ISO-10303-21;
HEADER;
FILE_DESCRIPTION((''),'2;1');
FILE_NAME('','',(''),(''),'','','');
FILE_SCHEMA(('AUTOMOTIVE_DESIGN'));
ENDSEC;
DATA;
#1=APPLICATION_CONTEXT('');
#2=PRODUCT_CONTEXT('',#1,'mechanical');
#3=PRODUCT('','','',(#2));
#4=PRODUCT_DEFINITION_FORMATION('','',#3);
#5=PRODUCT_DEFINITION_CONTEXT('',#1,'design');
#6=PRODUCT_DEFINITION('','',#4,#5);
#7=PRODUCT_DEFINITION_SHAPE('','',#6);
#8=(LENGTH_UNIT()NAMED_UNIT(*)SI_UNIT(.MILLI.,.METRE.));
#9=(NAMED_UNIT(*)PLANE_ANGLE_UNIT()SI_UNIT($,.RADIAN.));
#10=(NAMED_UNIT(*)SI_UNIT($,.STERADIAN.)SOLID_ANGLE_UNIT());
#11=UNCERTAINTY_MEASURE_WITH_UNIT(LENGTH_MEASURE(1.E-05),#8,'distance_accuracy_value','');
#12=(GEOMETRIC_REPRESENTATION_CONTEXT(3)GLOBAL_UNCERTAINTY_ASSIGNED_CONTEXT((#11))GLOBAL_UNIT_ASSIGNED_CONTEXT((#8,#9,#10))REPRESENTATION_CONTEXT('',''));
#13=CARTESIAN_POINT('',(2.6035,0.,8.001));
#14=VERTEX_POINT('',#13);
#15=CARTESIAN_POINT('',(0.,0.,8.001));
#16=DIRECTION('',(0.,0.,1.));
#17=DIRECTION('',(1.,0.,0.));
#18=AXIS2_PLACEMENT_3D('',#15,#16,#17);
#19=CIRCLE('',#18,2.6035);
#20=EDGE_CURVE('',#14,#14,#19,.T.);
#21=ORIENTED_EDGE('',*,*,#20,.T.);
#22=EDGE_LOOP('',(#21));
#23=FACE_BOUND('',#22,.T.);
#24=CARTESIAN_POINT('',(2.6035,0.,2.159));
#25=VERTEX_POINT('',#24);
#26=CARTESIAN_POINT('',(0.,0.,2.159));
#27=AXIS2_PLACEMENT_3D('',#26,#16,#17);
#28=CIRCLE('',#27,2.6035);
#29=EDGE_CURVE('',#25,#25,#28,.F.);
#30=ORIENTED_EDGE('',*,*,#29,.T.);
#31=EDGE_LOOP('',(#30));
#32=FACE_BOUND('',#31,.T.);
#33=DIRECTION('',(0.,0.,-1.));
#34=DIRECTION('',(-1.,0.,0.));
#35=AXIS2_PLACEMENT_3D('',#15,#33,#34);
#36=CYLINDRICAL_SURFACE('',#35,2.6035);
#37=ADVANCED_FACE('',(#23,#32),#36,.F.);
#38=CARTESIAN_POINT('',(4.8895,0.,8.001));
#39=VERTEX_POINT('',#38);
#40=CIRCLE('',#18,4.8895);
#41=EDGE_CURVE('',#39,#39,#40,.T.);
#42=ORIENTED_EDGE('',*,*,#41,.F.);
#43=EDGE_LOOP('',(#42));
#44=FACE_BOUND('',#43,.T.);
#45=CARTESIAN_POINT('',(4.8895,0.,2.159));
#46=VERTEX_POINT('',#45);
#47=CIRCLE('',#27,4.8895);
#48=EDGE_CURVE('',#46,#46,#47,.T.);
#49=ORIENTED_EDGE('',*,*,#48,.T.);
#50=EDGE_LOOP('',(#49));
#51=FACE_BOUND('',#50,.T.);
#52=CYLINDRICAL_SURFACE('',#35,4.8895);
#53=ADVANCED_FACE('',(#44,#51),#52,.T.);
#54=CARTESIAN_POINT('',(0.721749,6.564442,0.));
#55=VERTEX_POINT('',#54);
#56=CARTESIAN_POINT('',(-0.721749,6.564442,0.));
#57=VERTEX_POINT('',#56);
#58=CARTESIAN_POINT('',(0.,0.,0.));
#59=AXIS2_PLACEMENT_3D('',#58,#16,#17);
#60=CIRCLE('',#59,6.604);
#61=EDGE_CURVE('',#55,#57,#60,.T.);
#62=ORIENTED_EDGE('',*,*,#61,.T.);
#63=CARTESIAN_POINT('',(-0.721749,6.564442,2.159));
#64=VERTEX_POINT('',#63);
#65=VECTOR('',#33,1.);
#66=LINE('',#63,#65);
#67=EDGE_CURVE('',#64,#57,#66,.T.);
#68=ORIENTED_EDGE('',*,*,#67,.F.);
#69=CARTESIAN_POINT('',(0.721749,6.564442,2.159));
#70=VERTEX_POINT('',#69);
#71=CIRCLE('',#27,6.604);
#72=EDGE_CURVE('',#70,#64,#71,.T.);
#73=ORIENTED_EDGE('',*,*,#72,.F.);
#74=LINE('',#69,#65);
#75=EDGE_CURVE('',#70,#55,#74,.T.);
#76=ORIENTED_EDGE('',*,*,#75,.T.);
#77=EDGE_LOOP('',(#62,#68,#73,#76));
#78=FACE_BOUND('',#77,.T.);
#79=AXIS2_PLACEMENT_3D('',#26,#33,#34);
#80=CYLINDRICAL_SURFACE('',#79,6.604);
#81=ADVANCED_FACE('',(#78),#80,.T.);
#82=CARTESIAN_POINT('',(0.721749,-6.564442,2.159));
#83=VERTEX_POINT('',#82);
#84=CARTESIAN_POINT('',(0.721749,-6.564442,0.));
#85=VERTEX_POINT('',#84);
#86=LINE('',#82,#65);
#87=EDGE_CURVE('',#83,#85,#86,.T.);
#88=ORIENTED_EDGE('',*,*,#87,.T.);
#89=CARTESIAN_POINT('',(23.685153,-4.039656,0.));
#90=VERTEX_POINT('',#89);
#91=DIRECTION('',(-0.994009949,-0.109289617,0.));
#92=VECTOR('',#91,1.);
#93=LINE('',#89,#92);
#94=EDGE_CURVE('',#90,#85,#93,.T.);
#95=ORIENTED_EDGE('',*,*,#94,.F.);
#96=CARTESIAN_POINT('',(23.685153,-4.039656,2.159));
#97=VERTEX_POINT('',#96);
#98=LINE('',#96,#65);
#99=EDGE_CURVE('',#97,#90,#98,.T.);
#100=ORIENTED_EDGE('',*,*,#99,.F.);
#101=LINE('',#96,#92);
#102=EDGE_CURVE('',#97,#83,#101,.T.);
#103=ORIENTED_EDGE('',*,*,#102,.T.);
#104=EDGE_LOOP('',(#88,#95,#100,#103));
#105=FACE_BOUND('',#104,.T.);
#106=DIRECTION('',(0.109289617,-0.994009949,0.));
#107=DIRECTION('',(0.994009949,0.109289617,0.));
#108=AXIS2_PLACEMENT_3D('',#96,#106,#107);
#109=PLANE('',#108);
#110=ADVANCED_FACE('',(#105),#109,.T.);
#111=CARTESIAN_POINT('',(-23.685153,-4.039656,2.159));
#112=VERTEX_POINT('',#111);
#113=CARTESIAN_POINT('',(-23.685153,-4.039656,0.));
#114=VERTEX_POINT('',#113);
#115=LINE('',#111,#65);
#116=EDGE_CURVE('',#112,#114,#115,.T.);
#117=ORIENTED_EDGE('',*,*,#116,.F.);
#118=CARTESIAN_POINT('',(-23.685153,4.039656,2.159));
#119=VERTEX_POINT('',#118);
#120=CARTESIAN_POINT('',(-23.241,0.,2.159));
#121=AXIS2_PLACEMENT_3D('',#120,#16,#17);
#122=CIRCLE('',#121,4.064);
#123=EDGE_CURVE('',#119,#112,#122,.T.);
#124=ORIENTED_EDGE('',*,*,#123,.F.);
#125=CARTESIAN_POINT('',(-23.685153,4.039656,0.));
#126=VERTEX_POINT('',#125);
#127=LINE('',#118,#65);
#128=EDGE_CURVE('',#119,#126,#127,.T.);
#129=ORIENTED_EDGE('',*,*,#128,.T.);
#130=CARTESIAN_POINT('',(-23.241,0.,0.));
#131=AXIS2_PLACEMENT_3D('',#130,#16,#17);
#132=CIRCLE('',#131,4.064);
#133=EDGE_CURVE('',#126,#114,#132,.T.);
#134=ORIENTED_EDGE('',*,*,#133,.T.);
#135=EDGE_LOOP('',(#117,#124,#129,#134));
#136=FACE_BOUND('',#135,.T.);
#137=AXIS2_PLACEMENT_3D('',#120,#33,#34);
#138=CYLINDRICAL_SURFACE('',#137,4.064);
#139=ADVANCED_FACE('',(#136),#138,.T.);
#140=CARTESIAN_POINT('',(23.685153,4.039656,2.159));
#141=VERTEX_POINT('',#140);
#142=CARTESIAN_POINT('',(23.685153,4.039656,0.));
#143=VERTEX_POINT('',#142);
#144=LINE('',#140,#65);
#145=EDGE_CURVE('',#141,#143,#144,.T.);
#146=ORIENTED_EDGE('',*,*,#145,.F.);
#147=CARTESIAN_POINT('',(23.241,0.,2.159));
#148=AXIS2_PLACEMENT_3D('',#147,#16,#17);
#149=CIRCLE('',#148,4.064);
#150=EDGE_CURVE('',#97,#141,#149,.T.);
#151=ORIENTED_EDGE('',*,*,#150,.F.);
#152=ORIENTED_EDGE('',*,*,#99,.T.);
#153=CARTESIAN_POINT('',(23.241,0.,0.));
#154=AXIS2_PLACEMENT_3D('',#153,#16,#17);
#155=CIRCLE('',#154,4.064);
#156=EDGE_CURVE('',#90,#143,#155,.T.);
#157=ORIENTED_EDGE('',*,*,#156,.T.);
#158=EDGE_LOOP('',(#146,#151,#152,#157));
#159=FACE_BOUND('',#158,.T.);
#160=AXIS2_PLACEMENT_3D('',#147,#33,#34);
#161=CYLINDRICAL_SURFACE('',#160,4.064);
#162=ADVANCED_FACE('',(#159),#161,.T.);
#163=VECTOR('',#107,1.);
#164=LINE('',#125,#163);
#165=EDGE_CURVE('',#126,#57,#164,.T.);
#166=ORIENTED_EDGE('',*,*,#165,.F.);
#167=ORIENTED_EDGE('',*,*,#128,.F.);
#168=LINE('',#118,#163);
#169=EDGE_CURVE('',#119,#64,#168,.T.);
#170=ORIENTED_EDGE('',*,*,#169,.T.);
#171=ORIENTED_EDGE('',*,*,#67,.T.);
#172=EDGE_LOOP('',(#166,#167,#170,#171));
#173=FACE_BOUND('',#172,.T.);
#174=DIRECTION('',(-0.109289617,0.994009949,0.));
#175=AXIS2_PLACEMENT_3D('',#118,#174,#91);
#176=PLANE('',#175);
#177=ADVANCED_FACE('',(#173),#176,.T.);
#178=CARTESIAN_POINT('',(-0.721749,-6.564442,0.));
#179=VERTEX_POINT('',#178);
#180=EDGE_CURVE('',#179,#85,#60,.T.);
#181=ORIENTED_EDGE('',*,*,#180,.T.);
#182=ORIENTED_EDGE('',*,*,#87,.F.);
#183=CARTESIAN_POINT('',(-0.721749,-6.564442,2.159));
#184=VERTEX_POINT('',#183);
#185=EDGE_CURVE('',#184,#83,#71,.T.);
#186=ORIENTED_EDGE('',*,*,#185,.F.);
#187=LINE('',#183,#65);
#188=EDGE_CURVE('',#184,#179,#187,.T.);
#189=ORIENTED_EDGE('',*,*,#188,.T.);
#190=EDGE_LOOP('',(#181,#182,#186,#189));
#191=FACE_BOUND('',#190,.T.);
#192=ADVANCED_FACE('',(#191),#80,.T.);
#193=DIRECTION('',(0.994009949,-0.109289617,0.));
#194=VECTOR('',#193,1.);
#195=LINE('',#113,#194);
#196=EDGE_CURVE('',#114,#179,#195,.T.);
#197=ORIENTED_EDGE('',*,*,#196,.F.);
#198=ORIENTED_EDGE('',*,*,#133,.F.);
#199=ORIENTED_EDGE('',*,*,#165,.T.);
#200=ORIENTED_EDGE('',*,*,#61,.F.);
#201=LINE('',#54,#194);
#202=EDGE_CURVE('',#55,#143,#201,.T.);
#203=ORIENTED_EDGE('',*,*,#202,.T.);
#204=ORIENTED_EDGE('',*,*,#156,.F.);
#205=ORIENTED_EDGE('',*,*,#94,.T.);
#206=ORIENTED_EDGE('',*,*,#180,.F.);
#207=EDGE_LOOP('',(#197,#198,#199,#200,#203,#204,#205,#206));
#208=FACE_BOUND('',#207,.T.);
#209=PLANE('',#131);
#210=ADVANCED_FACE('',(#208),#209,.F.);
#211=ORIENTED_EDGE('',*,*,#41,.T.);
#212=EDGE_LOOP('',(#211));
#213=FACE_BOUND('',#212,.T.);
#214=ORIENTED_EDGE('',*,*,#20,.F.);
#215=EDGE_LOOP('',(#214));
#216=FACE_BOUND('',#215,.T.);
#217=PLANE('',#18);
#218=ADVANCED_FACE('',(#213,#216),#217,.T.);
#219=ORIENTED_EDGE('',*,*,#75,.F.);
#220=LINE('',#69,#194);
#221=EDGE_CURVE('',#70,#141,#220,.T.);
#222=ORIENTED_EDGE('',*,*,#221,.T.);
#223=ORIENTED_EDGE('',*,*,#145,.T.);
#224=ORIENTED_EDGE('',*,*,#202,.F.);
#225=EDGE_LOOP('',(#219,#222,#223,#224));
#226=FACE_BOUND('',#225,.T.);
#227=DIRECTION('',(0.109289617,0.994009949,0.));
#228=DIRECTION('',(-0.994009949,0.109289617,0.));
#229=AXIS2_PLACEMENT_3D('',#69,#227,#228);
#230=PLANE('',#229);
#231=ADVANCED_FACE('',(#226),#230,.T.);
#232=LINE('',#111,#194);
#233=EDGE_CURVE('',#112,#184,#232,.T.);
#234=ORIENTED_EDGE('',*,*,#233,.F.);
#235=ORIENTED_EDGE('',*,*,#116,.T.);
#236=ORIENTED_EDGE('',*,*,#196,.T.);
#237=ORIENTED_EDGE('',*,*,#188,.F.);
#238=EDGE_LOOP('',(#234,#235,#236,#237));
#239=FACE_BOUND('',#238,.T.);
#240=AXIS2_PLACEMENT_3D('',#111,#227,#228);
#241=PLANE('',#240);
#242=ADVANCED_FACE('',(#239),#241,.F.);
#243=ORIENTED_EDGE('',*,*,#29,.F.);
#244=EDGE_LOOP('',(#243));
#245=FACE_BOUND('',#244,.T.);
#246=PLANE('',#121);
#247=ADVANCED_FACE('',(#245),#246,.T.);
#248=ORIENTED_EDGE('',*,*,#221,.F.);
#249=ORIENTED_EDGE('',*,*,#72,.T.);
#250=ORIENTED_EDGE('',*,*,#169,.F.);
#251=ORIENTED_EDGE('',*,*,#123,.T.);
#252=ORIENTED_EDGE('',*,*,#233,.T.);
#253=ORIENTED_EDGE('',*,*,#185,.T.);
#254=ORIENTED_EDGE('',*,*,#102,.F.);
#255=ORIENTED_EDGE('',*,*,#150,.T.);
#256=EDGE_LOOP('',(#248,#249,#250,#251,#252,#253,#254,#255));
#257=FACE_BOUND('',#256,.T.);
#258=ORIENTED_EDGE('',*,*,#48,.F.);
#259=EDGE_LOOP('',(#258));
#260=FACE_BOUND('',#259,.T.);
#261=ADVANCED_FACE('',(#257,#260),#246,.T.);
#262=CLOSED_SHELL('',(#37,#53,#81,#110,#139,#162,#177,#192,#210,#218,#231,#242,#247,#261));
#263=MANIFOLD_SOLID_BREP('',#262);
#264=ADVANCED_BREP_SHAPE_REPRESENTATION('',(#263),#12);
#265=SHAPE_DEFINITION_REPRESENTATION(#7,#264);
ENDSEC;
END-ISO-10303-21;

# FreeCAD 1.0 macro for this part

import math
import FreeCAD as App
import Part
import Sketcher

V = App.Vector
Q = App.Units.Quantity

doc = App.newDocument("Part")
body = doc.addObject("PartDesign::Body", "Body")

sketch1 = body.newObject("Sketcher::SketchObject", "Sketch")
sketch1.AttachmentSupport = (doc.getObject("XY_Plane"), [""])
sketch1.MapMode = "FlatFace"
sketch1.addGeometry([
    Part.LineSegment(V(-0.7, 6.6, 0), V(-23.7, 4, 0)),
    Part.ArcOfCircle(Part.Circle(V(-23.2, 0, 0), V(0, 0, 1), 4.1), math.radians(96), math.radians(264)),
    Part.LineSegment(V(-23.7, -4, 0), V(-0.7, -6.6, 0)),
    Part.ArcOfCircle(Part.Circle(V(0, 0, 0), V(0, 0, 1), 6.6), math.radians(-96.27), math.radians(-83.73)),
    Part.LineSegment(V(0.7, -6.6, 0), V(23.7, -4, 0)),
    Part.ArcOfCircle(Part.Circle(V(23.2, 0, 0), V(0, 0, 1), 4.1), math.radians(-84), math.radians(84)),
    Part.LineSegment(V(23.7, 4, 0), V(0.7, 6.6, 0)),
    Part.ArcOfCircle(Part.Circle(V(0, 0, 0), V(0, 0, 1), 6.6), math.radians(83.73), math.radians(96.27)),
], False)
sketch1.addConstraint([
    Sketcher.Constraint("Tangent", 0, 2, 1, 1),
    Sketcher.Constraint("Tangent", 1, 2, 2, 1),
    Sketcher.Constraint("Tangent", 2, 2, 3, 1),
    Sketcher.Constraint("Tangent", 3, 2, 4, 1),
    Sketcher.Constraint("Tangent", 4, 2, 5, 1),
    Sketcher.Constraint("Tangent", 5, 2, 6, 1),
    Sketcher.Constraint("Tangent", 6, 2, 7, 1),
    Sketcher.Constraint("Tangent", 7, 2, 0, 1),
    Sketcher.Constraint("Coincident", 3, 3, -1, 1),
    Sketcher.Constraint("Coincident", 7, 3, -1, 1),
    Sketcher.Constraint("Equal", 1, 5),
    Sketcher.Constraint("Equal", 3, 7),
    Sketcher.Constraint("Symmetric", 1, 3, 5, 3, -1, 1),
    Sketcher.Constraint("PointOnObject", 1, 3, -1),
    Sketcher.Constraint("Radius", 1, Q("0.16 in")),
    Sketcher.Constraint("Radius", 3, Q("0.26 in")),
    Sketcher.Constraint("DistanceX", 1, 3, 5, 3, Q("1.83 in")),
])
pad1 = body.newObject("PartDesign::Pad", "Pad")
pad1.Profile = sketch1
pad1.Length = Q("0.085 in")

sketch2 = body.newObject("Sketcher::SketchObject", "Sketch001")
sketch2.AttachmentSupport = (doc.getObject("XY_Plane"), [""])
sketch2.MapMode = "FlatFace"
sketch2.AttachmentOffset = App.Placement(V(0, 0, 0.085 * 25.4), App.Rotation())
sketch2.addGeometry([
    Part.Circle(V(0, 0, 0), V(0, 0, 1), 4.9),
    Part.Circle(V(0, 0, 0), V(0, 0, 1), 2.6),
], False)
sketch2.addConstraint([
    Sketcher.Constraint("Coincident", 0, 3, -1, 1),
    Sketcher.Constraint("Coincident", 1, 3, -1, 1),
    Sketcher.Constraint("Diameter", 0, Q("0.385 in")),
    Sketcher.Constraint("Diameter", 1, Q("0.205 in")),
])
pad2 = body.newObject("PartDesign::Pad", "Pad001")
pad2.Profile = sketch2
pad2.Length = Q("0.23 in")

doc.recompute()
